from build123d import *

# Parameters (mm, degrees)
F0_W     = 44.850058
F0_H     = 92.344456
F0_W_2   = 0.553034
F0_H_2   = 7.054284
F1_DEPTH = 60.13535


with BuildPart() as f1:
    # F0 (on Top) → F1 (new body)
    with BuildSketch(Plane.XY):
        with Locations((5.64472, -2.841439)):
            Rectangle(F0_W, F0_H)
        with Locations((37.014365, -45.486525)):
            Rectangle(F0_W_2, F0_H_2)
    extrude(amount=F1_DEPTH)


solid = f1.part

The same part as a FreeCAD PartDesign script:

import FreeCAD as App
import Part
import Sketcher
from FreeCAD import Vector

doc = App.newDocument("Part")
body = doc.addObject("PartDesign::Body", "Body")
body.AllowCompound = True

# Sketch on XY plane
sketch1 = body.newObject("Sketcher::SketchObject", "Sketch")
sketch1.AttachmentSupport = (doc.getObject("XY_Plane"), [""])
sketch1.MapMode = "FlatFace"
sketch1.addGeometry([
    Part.LineSegment(Vector(-16.8, 43.3, 0), Vector(-16.8, -49, 0)),  # 0
    Part.LineSegment(Vector(-16.8, -49, 0), Vector(28.1, -49, 0)),  # 1
    Part.LineSegment(Vector(28.1, -49, 0), Vector(28.1, 43.3, 0)),  # 2
    Part.LineSegment(Vector(28.1, 43.3, 0), Vector(-16.8, 43.3, 0)),  # 3
    Part.LineSegment(Vector(36.7, -42, 0), Vector(36.7, -49, 0)),  # 4
    Part.LineSegment(Vector(36.7, -49, 0), Vector(37.3, -49, 0)),  # 5
    Part.LineSegment(Vector(37.3, -49, 0), Vector(37.3, -42, 0)),  # 6
    Part.LineSegment(Vector(37.3, -42, 0), Vector(36.7, -42, 0)),  # 7
], False)
sketch1.addConstraint([
    Sketcher.Constraint("Coincident", 0, 2, 1, 1),
    Sketcher.Constraint("Coincident", 1, 2, 2, 1),
    Sketcher.Constraint("Coincident", 2, 2, 3, 1),
    Sketcher.Constraint("Coincident", 3, 2, 0, 1),
    Sketcher.Constraint("Coincident", 4, 2, 5, 1),
    Sketcher.Constraint("Coincident", 5, 2, 6, 1),
    Sketcher.Constraint("Coincident", 6, 2, 7, 1),
    Sketcher.Constraint("Coincident", 7, 2, 4, 1),
    Sketcher.Constraint("Vertical", 0),
    Sketcher.Constraint("Horizontal", 1),
    Sketcher.Constraint("Vertical", 2),
    Sketcher.Constraint("Horizontal", 3),
    Sketcher.Constraint("Vertical", 4),
    Sketcher.Constraint("Horizontal", 5),
    Sketcher.Constraint("Vertical", 6),
    Sketcher.Constraint("Horizontal", 7),
    Sketcher.Constraint("Horizontal", 1, 2, 4, 2),
    Sketcher.Constraint("DistanceX", 1, 1, 1, 2, 44.850058),
    Sketcher.Constraint("DistanceX", 1, 2, 4, 2, 8.668099),
    Sketcher.Constraint("DistanceX", 5, 1, 5, 2, 0.553034),
    Sketcher.Constraint("DistanceY", 0, 2, 0, 1, 92.344456),
    Sketcher.Constraint("DistanceY", 4, 2, 4, 1, 7.054284),
    Sketcher.Constraint("DistanceX", 0, 2, -1, 1, 16.780309),
    Sketcher.Constraint("DistanceY", -1, 1, 2, 2, 43.330789),
])
pad1 = body.newObject("PartDesign::Pad", "Pad")
pad1.Profile = sketch1
pad1.Length = 60.13535

doc.recompute()
